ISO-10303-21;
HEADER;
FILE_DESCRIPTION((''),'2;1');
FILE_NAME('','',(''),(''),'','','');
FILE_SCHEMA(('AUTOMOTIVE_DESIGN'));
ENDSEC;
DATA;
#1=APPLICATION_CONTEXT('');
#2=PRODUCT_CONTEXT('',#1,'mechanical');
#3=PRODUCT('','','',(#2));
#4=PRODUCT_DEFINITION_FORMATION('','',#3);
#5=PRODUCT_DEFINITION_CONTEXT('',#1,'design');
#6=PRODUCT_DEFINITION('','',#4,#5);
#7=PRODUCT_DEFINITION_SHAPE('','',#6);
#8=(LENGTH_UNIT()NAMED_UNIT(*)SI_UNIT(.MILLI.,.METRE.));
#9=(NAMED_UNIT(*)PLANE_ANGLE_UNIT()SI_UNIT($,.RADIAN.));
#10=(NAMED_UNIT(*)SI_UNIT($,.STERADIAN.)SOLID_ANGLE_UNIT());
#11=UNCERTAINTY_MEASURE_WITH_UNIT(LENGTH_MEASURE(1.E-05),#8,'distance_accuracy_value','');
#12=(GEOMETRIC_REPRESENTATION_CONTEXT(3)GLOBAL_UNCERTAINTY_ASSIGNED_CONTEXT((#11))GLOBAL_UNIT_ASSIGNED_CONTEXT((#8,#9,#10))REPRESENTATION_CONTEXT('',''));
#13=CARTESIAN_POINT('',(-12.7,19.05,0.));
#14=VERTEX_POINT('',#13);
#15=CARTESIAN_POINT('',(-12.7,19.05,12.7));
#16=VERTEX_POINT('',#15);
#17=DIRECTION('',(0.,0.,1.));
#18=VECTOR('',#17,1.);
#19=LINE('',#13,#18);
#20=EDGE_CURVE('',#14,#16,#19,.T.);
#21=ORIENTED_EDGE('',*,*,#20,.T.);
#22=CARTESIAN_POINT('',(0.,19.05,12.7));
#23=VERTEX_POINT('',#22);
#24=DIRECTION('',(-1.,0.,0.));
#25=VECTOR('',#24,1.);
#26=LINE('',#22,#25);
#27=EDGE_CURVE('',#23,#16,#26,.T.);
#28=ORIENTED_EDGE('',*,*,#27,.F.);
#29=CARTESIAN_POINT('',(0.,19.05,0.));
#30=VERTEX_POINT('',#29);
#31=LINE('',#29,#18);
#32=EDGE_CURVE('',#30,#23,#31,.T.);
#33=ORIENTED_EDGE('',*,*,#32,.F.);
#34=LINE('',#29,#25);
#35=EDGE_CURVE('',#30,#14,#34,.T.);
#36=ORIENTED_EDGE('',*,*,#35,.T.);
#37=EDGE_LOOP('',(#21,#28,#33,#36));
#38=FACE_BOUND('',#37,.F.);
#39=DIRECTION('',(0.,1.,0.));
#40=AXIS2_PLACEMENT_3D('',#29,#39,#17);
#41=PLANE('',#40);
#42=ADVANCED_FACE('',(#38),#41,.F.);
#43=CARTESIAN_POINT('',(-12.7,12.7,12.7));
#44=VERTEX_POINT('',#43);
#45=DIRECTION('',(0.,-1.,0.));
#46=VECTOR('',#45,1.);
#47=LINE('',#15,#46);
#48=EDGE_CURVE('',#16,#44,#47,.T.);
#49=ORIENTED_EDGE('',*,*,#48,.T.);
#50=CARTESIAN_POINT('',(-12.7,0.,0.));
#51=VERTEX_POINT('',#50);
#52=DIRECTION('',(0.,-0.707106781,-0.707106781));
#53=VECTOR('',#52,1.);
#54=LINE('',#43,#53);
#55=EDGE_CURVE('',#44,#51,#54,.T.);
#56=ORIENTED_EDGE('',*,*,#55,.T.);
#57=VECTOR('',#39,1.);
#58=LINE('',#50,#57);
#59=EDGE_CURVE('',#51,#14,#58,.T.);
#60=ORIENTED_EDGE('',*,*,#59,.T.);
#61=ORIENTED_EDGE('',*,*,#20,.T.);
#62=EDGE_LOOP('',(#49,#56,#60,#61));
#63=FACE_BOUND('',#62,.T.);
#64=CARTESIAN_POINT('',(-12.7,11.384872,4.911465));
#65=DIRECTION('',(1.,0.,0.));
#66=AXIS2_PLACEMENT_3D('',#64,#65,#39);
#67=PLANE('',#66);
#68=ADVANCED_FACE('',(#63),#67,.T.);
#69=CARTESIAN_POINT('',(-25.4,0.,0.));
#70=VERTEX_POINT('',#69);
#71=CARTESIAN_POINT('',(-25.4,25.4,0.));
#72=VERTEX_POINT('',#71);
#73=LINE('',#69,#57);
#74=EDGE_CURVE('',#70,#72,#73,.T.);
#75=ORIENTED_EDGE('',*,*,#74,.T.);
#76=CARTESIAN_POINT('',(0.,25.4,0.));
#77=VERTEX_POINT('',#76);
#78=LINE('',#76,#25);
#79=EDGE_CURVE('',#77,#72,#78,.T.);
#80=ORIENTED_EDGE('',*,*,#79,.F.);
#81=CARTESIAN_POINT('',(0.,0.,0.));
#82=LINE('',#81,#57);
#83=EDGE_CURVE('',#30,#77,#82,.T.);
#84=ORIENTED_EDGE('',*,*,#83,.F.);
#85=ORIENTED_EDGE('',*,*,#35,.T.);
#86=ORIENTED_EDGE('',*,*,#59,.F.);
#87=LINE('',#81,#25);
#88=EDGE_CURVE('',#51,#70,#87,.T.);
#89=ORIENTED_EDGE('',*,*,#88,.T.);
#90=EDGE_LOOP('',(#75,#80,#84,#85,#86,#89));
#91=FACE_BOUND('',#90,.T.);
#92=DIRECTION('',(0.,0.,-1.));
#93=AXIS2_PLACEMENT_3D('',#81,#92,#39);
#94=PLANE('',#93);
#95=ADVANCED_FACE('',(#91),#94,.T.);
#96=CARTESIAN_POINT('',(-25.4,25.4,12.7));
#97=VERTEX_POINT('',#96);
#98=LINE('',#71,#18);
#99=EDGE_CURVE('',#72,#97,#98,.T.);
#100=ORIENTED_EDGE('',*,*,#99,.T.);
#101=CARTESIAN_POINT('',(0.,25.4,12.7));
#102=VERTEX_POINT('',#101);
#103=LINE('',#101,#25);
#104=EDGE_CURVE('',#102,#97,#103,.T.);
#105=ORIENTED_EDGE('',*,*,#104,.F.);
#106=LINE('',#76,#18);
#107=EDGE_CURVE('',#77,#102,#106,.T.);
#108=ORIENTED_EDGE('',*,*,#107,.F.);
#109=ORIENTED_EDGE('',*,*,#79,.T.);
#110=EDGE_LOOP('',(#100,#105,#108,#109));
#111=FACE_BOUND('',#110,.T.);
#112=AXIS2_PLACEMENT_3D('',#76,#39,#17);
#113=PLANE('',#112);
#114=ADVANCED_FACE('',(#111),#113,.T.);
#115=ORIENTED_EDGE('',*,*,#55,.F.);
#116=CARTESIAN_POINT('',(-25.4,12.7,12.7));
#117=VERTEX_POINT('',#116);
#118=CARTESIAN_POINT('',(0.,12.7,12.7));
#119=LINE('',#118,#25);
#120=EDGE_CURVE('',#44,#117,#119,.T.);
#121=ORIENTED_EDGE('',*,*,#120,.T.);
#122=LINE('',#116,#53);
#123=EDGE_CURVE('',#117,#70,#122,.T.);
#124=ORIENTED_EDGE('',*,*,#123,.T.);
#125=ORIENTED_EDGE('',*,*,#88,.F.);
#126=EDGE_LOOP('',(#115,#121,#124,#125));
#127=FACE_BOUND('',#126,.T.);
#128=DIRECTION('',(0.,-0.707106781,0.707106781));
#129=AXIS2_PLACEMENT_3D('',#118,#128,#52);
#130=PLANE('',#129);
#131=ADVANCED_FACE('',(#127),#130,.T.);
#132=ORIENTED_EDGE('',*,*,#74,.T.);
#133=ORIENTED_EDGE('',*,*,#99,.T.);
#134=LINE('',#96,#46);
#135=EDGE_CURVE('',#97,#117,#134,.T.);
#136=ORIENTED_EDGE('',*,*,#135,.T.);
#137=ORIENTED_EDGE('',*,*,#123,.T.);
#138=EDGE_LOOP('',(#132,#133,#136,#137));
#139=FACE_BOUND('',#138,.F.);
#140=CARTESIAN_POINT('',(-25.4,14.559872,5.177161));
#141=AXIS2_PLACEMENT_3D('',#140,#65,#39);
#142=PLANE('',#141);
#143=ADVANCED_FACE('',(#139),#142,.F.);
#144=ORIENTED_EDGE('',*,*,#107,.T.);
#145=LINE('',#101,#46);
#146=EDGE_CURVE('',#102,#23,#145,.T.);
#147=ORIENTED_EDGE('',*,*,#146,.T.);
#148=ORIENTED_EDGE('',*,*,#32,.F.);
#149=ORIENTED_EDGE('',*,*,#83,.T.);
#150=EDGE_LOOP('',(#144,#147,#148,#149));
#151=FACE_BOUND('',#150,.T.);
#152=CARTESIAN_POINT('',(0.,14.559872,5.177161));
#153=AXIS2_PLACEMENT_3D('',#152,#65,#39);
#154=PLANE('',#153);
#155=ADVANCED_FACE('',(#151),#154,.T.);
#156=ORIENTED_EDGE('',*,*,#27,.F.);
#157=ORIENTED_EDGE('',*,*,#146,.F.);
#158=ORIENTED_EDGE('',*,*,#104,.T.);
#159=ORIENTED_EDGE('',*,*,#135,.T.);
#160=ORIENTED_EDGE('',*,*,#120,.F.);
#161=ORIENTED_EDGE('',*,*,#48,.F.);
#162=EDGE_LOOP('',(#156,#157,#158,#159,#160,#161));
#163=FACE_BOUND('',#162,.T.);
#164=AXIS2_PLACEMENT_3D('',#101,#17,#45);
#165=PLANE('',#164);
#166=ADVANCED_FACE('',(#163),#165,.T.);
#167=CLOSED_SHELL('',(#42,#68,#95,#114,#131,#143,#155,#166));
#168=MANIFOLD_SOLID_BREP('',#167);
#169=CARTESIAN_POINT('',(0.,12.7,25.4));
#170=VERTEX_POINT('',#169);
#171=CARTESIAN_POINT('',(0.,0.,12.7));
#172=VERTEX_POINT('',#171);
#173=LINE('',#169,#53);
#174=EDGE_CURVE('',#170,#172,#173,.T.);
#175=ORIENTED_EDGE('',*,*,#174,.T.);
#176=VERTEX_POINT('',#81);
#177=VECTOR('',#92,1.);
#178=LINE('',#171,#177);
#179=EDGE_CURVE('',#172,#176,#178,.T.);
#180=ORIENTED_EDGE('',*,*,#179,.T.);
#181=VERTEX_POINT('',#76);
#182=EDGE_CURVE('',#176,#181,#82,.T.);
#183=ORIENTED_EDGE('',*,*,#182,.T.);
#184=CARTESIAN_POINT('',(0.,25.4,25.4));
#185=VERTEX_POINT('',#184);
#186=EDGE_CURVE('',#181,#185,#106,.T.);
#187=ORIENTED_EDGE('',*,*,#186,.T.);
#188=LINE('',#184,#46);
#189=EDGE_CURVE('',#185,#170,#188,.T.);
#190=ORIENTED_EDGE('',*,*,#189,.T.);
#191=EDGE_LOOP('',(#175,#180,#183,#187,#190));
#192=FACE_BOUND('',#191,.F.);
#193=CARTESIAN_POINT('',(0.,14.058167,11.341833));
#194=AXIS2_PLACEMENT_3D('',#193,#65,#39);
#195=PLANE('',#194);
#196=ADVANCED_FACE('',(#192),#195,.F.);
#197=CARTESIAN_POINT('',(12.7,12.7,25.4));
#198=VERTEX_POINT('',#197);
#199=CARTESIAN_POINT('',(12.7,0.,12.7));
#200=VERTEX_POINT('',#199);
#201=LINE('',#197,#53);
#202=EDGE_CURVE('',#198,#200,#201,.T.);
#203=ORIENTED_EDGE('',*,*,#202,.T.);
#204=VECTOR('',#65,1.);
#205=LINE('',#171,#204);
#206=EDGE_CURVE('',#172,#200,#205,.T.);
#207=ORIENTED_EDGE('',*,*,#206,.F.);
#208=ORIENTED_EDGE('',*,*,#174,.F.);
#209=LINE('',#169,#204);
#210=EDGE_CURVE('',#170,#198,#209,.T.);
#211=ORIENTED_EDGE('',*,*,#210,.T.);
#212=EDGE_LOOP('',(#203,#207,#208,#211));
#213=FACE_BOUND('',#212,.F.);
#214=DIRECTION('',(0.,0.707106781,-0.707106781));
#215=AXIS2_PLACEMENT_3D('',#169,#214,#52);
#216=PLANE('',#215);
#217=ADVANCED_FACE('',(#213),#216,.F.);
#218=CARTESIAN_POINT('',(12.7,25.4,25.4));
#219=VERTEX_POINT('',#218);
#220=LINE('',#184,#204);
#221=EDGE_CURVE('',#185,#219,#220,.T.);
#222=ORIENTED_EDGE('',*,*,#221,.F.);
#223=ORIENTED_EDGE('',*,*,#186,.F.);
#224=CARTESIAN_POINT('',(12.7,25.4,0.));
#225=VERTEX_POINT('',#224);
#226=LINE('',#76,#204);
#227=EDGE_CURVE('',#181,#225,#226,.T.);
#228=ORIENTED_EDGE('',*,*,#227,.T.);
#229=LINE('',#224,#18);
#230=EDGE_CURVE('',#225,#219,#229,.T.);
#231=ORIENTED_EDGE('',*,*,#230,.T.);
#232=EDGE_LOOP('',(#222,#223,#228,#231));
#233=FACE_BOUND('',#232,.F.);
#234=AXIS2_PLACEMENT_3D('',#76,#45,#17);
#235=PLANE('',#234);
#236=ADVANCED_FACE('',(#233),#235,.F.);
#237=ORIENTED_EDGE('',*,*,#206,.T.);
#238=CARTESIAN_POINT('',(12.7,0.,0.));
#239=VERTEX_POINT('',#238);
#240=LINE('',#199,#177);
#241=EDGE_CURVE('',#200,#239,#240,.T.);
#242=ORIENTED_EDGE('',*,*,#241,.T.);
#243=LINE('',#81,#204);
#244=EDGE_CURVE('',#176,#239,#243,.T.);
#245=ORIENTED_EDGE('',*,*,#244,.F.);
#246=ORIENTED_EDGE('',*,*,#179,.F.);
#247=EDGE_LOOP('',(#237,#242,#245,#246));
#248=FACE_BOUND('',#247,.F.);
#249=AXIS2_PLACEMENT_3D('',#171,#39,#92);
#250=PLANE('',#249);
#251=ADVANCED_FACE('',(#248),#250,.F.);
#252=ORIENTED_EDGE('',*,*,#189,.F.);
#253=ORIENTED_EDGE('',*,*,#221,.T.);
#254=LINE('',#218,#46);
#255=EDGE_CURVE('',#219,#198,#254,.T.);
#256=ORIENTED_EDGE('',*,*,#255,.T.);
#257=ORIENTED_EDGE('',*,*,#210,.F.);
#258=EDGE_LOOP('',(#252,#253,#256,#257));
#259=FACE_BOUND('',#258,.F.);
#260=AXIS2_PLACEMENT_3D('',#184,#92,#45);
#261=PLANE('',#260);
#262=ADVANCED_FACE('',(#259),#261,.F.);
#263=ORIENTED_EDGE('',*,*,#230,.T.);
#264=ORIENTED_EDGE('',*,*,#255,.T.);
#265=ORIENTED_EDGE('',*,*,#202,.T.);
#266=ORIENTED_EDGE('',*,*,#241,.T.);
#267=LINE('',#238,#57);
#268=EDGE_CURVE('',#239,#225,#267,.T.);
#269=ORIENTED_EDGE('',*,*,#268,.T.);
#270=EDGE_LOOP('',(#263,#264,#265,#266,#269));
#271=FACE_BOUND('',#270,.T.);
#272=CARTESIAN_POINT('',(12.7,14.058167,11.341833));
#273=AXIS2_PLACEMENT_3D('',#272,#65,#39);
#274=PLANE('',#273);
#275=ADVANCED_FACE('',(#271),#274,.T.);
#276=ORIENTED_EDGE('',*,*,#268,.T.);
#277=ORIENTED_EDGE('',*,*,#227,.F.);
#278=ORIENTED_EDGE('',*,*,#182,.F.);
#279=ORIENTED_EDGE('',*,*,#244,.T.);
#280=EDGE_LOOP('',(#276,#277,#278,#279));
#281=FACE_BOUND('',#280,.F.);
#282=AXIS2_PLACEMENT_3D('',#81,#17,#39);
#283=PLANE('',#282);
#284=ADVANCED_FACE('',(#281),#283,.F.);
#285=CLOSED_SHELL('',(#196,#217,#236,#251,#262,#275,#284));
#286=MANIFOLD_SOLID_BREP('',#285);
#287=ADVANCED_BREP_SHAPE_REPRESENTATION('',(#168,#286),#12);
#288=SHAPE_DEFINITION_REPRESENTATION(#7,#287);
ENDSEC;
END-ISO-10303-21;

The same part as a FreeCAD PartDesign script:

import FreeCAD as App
import Part
import Sketcher
Q = App.Units.Quantity

doc = App.newDocument("Part")
body = doc.addObject("PartDesign::Body", "Body")

sketch1 = body.newObject("Sketcher::SketchObject", "Sketch")
sketch1.AttachmentSupport = (doc.getObject("YZ_Plane"), [""])
sketch1.MapMode = "FlatFace"
sketch1.addGeometry([
    Part.LineSegment(App.Vector(0, 13, 0), App.Vector(0, 0, 0)),
    Part.LineSegment(App.Vector(0, 0, 0), App.Vector(25, 0, 0)),
    Part.LineSegment(App.Vector(25, 0, 0), App.Vector(25, 25, 0)),
    Part.LineSegment(App.Vector(25, 25, 0), App.Vector(13, 25, 0)),
    Part.LineSegment(App.Vector(13, 25, 0), App.Vector(0, 13, 0)),
], False)
sketch1.addConstraint([
    Sketcher.Constraint("Coincident", 0, 2, 1, 1),
    Sketcher.Constraint("Coincident", 1, 2, 2, 1),
    Sketcher.Constraint("Coincident", 2, 2, 3, 1),
    Sketcher.Constraint("Coincident", 3, 2, 4, 1),
    Sketcher.Constraint("Coincident", 4, 2, 0, 1),
    Sketcher.Constraint("Vertical", 0),
    Sketcher.Constraint("Horizontal", 1),
    Sketcher.Constraint("Vertical", 2),
    Sketcher.Constraint("Horizontal", 3),
    Sketcher.Constraint("Coincident", 0, 2, -1, 1),
    Sketcher.Constraint("Equal", 3, 0),
    Sketcher.Constraint("Equal", 1, 2),
    Sketcher.Constraint("DistanceX", 1, 1, 1, 2, Q("1 in")),
    Sketcher.Constraint("DistanceX", 3, 2, 3, 1, Q("0.5 in")),
])
pad1 = body.newObject("PartDesign::Pad", "Pad")
pad1.Profile = sketch1
pad1.Length = Q("0.5 in")
body2 = doc.addObject("PartDesign::Body", "Body001")

sketch2 = body2.newObject("Sketcher::SketchObject", "Sketch001")
sketch2.AttachmentSupport = (doc.getObject("YZ_Plane001"), [""])
sketch2.MapMode = "FlatFace"
sketch2.addGeometry([
    Part.LineSegment(App.Vector(13, 13, 0), App.Vector(0, 0, 0)),
    Part.LineSegment(App.Vector(0, 0, 0), App.Vector(25, 0, 0)),
    Part.LineSegment(App.Vector(25, 0, 0), App.Vector(25, 13, 0)),
    Part.LineSegment(App.Vector(25, 13, 0), App.Vector(13, 13, 0)),
], False)
sketch2.addConstraint([
    Sketcher.Constraint("Coincident", 0, 2, 1, 1),
    Sketcher.Constraint("Coincident", 1, 2, 2, 1),
    Sketcher.Constraint("Coincident", 2, 2, 3, 1),
    Sketcher.Constraint("Coincident", 3, 2, 0, 1),
    Sketcher.Constraint("Horizontal", 1),
    Sketcher.Constraint("Vertical", 2),
    Sketcher.Constraint("Horizontal", 3),
    Sketcher.Constraint("Coincident", 0, 2, -1, 1),
    Sketcher.Constraint("Equal", 3, 2),
    Sketcher.Constraint("DistanceX", 1, 1, 1, 2, Q("1 in")),
    Sketcher.Constraint("DistanceX", 3, 2, 3, 1, Q("0.5 in")),
])
pad2 = body2.newObject("PartDesign::Pad", "Pad001")
pad2.Profile = sketch2
pad2.Length = Q("1 in")
pad2.Reversed = True

sketch3 = body2.newObject("Sketcher::SketchObject", "Sketch002")
sketch3.AttachmentSupport = (doc.getObject("YZ_Plane001"), [""])
sketch3.MapMode = "FlatFace"
sketch3.addGeometry([
    Part.LineSegment(App.Vector(13, 13, 0), App.Vector(0, 0, 0)),
    Part.LineSegment(App.Vector(0, 0, 0), App.Vector(19, 0, 0)),
    Part.LineSegment(App.Vector(19, 0, 0), App.Vector(19, 13, 0)),
    Part.LineSegment(App.Vector(19, 13, 0), App.Vector(13, 13, 0)),
], False)
sketch3.addConstraint([
    Sketcher.Constraint("Coincident", 0, 2, 1, 1),
    Sketcher.Constraint("Coincident", 1, 2, 2, 1),
    Sketcher.Constraint("Coincident", 2, 2, 3, 1),
    Sketcher.Constraint("Coincident", 3, 2, 0, 1),
    Sketcher.Constraint("Horizontal", 1),
    Sketcher.Constraint("Vertical", 2),
    Sketcher.Constraint("Horizontal", 3),
    Sketcher.Constraint("Coincident", 0, 2, -1, 1),
    Sketcher.Constraint("DistanceY", 2, 1, 2, 2, Q("0.5 in")),
    Sketcher.Constraint("Angle", 0, Q("-135 deg")),
    Sketcher.Constraint("DistanceX", 1, 1, 1, 2, Q("0.75 in")),
])
pocket1 = body2.newObject("PartDesign::Pocket", "Pocket")
pocket1.Profile = sketch3
pocket1.Length = Q("0.5 in")

doc.recompute()
